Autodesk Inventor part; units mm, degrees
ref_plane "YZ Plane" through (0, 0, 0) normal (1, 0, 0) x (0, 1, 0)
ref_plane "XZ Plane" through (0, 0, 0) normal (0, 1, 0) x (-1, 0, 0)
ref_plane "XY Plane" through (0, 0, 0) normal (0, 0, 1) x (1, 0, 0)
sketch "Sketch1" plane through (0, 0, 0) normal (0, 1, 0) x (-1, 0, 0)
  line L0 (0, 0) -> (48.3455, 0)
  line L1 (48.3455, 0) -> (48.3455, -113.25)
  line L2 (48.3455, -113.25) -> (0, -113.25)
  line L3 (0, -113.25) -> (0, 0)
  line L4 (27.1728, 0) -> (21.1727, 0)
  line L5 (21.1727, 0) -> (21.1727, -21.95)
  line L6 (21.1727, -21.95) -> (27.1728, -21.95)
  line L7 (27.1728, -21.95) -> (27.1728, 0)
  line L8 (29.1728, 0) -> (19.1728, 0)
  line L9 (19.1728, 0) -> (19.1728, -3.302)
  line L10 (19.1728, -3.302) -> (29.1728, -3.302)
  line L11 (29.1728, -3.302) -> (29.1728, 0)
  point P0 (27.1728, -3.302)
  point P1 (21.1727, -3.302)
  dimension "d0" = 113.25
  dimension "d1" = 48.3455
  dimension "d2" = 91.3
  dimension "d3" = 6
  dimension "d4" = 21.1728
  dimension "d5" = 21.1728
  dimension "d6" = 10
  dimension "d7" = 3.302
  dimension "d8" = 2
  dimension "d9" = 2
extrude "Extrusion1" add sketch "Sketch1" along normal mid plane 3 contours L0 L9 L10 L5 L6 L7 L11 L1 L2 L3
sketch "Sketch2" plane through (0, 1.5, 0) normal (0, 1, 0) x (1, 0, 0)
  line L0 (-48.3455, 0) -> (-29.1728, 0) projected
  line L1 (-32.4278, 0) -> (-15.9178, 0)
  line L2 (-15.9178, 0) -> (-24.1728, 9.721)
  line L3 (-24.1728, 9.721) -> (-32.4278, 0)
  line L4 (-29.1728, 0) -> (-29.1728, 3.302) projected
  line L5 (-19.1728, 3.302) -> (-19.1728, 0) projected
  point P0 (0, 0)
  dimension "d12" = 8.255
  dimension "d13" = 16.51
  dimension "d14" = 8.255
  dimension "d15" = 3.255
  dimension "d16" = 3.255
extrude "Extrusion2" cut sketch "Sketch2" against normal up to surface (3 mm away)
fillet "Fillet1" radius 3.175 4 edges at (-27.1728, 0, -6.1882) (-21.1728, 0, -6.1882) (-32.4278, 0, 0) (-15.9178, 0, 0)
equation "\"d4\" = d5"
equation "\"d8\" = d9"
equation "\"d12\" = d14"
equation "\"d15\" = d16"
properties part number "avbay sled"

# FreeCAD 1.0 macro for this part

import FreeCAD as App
import Part
import Sketcher
from FreeCAD import Vector
Q = App.Units.Quantity


def edges_at(feature, points):
    """Names of the edges that pass closest to the given points."""
    edges = feature.Shape.Edges
    near = lambda p: min(range(len(edges)), key=lambda i: edges[i].distToShape(Part.Vertex(*p))[0])
    return sorted({f"Edge{near(p) + 1}" for p in points})

doc = App.newDocument("Part")
params = doc.addObject("Spreadsheet::Sheet", "Params")
for row, (alias, value) in enumerate([
    ("sketch1_width", "2 mm"),
    ("sketch1_width2", "6 mm"),
    ("sketch1_height", "113.25 mm"),
    ("pad1_length", "3 mm"),
    ("sketch2_width", "16.51 mm"),
    ("pocket1_length", "3 mm"),
    ("fillet_radius", "3.175 mm"),
], start=1):
    params.set(f"A{row}", alias)
    params.set(f"B{row}", "=" + value)
    params.setAlias(f"B{row}", alias)

body = doc.addObject("PartDesign::Body", "Body")

sketch1 = body.newObject("Sketcher::SketchObject", "Sketch")
sketch1.AttachmentSupport = (doc.getObject("XZ_Plane"), [""])
sketch1.MapMode = "FlatFace"
sketch1.addGeometry([
    Part.LineSegment(Vector(-19.2, 0, 0), Vector(0, 0, 0)),
    Part.LineSegment(Vector(0, 0, 0), Vector(0, -113.2, 0)),
    Part.LineSegment(Vector(0, -113.2, 0), Vector(-48.3, -113.2, 0)),
    Part.LineSegment(Vector(-48.3, -113.2, 0), Vector(-48.3, 0, 0)),
    Part.LineSegment(Vector(-48.3, 0, 0), Vector(-29.2, 0, 0)),
    Part.LineSegment(Vector(-29.2, 0, 0), Vector(-29.2, -3.3, 0)),
    Part.LineSegment(Vector(-29.2, -3.3, 0), Vector(-27.2, -3.3, 0)),
    Part.LineSegment(Vector(-27.2, -3.3, 0), Vector(-27.2, -21.9, 0)),
    Part.LineSegment(Vector(-27.2, -21.9, 0), Vector(-21.2, -21.9, 0)),
    Part.LineSegment(Vector(-21.2, -21.9, 0), Vector(-21.2, -3.3, 0)),
    Part.LineSegment(Vector(-21.2, -3.3, 0), Vector(-19.2, -3.3, 0)),
    Part.LineSegment(Vector(-19.2, -3.3, 0), Vector(-19.2, 0, 0)),
], False)
sketch1.addConstraint([
    Sketcher.Constraint("Coincident", 0, 2, 1, 1),
    Sketcher.Constraint("Coincident", 1, 2, 2, 1),
    Sketcher.Constraint("Coincident", 2, 2, 3, 1),
    Sketcher.Constraint("Coincident", 3, 2, 4, 1),
    Sketcher.Constraint("Coincident", 4, 2, 5, 1),
    Sketcher.Constraint("Coincident", 5, 2, 6, 1),
    Sketcher.Constraint("Coincident", 6, 2, 7, 1),
    Sketcher.Constraint("Coincident", 7, 2, 8, 1),
    Sketcher.Constraint("Coincident", 8, 2, 9, 1),
    Sketcher.Constraint("Coincident", 9, 2, 10, 1),
    Sketcher.Constraint("Coincident", 10, 2, 11, 1),
    Sketcher.Constraint("Coincident", 11, 2, 0, 1),
    Sketcher.Constraint("Horizontal", 0),
    Sketcher.Constraint("Vertical", 1),
    Sketcher.Constraint("Horizontal", 2),
    Sketcher.Constraint("Vertical", 3),
    Sketcher.Constraint("Horizontal", 4),
    Sketcher.Constraint("Vertical", 5),
    Sketcher.Constraint("Horizontal", 6),
    Sketcher.Constraint("Vertical", 7),
    Sketcher.Constraint("Horizontal", 8),
    Sketcher.Constraint("Vertical", 9),
    Sketcher.Constraint("Horizontal", 10),
    Sketcher.Constraint("Vertical", 11),
    Sketcher.Constraint("Coincident", 0, 2, -1, 1),
    Sketcher.Constraint("PointOnObject", 3, 2, -1),
    Sketcher.Constraint("Horizontal", 6, 2, 9, 2),
    Sketcher.Constraint("Equal", 0, 4),
    Sketcher.Constraint("Equal", 6, 10),
    Sketcher.Constraint("DistanceX", 6, 1, 6, 2, Q("2 mm")),
    Sketcher.Constraint("DistanceX", 8, 1, 8, 2, Q("6 mm")),
    Sketcher.Constraint("DistanceY", 1, 2, 1, 1, Q("113.25 mm")),
    Sketcher.Constraint("DistanceY", 5, 2, 5, 1, Q("3.302 mm")),
    Sketcher.Constraint("DistanceX", 2, 2, 2, 1, Q("48.3455 mm")),
    Sketcher.Constraint("DistanceY", 7, 2, 7, 1, Q("18.648 mm")),
])
sketch1.setExpression("Constraints[29]", "Params.sketch1_width")
sketch1.setExpression("Constraints[30]", "Params.sketch1_width2")
sketch1.setExpression("Constraints[31]", "Params.sketch1_height")
pad1 = body.newObject("PartDesign::Pad", "Pad")
pad1.Profile = sketch1
pad1.setExpression("Length", "Params.pad1_length")
pad1.Midplane = True

sketch2 = body.newObject("Sketcher::SketchObject", "Sketch001")
sketch2.AttachmentSupport = (doc.getObject("XZ_Plane"), [""])
sketch2.MapMode = "FlatFace"
sketch2.AttachmentOffset = App.Placement(Vector(0, 0, -1.5), App.Rotation())
sketch2.addGeometry([
    Part.LineSegment(Vector(-24, -10, 0), Vector(-32, 0, 0)),
    Part.LineSegment(Vector(-32, 0, 0), Vector(-16, 0, 0)),
    Part.LineSegment(Vector(-16, 0, 0), Vector(-24, -10, 0)),
], False)
sketch2.addConstraint([
    Sketcher.Constraint("Coincident", 0, 2, 1, 1),
    Sketcher.Constraint("Coincident", 1, 2, 2, 1),
    Sketcher.Constraint("Coincident", 2, 2, 0, 1),
    Sketcher.Constraint("Horizontal", 1),
    Sketcher.Constraint("PointOnObject", 0, 2, -1),
    Sketcher.Constraint("Equal", 0, 2),
    Sketcher.Constraint("DistanceX", 1, 1, 1, 2, Q("16.51 mm")),
    Sketcher.Constraint("DistanceY", 2, 2, -1, 1, Q("9.721 mm")),
    Sketcher.Constraint("DistanceX", 0, 2, -1, 1, Q("32.4278 mm")),
])
sketch2.setExpression("Constraints[6]", "Params.sketch2_width")
pocket1 = body.newObject("PartDesign::Pocket", "Pocket")
pocket1.Profile = sketch2
pocket1.setExpression("Length", "Params.pocket1_length")
pocket1.Reversed = True
doc.recompute()

fillet = body.newObject("PartDesign::Fillet", "Fillet")
fillet.Base = (pocket1, edges_at(pocket1, [
    (-27.173, 0, -6.188),
    (-21.173, 0, -6.188),
    (-32.428, 0, 0),
    (-15.918, 0, 0),
]))
fillet.setExpression("Radius", "Params.fillet_radius")

doc.recompute()
